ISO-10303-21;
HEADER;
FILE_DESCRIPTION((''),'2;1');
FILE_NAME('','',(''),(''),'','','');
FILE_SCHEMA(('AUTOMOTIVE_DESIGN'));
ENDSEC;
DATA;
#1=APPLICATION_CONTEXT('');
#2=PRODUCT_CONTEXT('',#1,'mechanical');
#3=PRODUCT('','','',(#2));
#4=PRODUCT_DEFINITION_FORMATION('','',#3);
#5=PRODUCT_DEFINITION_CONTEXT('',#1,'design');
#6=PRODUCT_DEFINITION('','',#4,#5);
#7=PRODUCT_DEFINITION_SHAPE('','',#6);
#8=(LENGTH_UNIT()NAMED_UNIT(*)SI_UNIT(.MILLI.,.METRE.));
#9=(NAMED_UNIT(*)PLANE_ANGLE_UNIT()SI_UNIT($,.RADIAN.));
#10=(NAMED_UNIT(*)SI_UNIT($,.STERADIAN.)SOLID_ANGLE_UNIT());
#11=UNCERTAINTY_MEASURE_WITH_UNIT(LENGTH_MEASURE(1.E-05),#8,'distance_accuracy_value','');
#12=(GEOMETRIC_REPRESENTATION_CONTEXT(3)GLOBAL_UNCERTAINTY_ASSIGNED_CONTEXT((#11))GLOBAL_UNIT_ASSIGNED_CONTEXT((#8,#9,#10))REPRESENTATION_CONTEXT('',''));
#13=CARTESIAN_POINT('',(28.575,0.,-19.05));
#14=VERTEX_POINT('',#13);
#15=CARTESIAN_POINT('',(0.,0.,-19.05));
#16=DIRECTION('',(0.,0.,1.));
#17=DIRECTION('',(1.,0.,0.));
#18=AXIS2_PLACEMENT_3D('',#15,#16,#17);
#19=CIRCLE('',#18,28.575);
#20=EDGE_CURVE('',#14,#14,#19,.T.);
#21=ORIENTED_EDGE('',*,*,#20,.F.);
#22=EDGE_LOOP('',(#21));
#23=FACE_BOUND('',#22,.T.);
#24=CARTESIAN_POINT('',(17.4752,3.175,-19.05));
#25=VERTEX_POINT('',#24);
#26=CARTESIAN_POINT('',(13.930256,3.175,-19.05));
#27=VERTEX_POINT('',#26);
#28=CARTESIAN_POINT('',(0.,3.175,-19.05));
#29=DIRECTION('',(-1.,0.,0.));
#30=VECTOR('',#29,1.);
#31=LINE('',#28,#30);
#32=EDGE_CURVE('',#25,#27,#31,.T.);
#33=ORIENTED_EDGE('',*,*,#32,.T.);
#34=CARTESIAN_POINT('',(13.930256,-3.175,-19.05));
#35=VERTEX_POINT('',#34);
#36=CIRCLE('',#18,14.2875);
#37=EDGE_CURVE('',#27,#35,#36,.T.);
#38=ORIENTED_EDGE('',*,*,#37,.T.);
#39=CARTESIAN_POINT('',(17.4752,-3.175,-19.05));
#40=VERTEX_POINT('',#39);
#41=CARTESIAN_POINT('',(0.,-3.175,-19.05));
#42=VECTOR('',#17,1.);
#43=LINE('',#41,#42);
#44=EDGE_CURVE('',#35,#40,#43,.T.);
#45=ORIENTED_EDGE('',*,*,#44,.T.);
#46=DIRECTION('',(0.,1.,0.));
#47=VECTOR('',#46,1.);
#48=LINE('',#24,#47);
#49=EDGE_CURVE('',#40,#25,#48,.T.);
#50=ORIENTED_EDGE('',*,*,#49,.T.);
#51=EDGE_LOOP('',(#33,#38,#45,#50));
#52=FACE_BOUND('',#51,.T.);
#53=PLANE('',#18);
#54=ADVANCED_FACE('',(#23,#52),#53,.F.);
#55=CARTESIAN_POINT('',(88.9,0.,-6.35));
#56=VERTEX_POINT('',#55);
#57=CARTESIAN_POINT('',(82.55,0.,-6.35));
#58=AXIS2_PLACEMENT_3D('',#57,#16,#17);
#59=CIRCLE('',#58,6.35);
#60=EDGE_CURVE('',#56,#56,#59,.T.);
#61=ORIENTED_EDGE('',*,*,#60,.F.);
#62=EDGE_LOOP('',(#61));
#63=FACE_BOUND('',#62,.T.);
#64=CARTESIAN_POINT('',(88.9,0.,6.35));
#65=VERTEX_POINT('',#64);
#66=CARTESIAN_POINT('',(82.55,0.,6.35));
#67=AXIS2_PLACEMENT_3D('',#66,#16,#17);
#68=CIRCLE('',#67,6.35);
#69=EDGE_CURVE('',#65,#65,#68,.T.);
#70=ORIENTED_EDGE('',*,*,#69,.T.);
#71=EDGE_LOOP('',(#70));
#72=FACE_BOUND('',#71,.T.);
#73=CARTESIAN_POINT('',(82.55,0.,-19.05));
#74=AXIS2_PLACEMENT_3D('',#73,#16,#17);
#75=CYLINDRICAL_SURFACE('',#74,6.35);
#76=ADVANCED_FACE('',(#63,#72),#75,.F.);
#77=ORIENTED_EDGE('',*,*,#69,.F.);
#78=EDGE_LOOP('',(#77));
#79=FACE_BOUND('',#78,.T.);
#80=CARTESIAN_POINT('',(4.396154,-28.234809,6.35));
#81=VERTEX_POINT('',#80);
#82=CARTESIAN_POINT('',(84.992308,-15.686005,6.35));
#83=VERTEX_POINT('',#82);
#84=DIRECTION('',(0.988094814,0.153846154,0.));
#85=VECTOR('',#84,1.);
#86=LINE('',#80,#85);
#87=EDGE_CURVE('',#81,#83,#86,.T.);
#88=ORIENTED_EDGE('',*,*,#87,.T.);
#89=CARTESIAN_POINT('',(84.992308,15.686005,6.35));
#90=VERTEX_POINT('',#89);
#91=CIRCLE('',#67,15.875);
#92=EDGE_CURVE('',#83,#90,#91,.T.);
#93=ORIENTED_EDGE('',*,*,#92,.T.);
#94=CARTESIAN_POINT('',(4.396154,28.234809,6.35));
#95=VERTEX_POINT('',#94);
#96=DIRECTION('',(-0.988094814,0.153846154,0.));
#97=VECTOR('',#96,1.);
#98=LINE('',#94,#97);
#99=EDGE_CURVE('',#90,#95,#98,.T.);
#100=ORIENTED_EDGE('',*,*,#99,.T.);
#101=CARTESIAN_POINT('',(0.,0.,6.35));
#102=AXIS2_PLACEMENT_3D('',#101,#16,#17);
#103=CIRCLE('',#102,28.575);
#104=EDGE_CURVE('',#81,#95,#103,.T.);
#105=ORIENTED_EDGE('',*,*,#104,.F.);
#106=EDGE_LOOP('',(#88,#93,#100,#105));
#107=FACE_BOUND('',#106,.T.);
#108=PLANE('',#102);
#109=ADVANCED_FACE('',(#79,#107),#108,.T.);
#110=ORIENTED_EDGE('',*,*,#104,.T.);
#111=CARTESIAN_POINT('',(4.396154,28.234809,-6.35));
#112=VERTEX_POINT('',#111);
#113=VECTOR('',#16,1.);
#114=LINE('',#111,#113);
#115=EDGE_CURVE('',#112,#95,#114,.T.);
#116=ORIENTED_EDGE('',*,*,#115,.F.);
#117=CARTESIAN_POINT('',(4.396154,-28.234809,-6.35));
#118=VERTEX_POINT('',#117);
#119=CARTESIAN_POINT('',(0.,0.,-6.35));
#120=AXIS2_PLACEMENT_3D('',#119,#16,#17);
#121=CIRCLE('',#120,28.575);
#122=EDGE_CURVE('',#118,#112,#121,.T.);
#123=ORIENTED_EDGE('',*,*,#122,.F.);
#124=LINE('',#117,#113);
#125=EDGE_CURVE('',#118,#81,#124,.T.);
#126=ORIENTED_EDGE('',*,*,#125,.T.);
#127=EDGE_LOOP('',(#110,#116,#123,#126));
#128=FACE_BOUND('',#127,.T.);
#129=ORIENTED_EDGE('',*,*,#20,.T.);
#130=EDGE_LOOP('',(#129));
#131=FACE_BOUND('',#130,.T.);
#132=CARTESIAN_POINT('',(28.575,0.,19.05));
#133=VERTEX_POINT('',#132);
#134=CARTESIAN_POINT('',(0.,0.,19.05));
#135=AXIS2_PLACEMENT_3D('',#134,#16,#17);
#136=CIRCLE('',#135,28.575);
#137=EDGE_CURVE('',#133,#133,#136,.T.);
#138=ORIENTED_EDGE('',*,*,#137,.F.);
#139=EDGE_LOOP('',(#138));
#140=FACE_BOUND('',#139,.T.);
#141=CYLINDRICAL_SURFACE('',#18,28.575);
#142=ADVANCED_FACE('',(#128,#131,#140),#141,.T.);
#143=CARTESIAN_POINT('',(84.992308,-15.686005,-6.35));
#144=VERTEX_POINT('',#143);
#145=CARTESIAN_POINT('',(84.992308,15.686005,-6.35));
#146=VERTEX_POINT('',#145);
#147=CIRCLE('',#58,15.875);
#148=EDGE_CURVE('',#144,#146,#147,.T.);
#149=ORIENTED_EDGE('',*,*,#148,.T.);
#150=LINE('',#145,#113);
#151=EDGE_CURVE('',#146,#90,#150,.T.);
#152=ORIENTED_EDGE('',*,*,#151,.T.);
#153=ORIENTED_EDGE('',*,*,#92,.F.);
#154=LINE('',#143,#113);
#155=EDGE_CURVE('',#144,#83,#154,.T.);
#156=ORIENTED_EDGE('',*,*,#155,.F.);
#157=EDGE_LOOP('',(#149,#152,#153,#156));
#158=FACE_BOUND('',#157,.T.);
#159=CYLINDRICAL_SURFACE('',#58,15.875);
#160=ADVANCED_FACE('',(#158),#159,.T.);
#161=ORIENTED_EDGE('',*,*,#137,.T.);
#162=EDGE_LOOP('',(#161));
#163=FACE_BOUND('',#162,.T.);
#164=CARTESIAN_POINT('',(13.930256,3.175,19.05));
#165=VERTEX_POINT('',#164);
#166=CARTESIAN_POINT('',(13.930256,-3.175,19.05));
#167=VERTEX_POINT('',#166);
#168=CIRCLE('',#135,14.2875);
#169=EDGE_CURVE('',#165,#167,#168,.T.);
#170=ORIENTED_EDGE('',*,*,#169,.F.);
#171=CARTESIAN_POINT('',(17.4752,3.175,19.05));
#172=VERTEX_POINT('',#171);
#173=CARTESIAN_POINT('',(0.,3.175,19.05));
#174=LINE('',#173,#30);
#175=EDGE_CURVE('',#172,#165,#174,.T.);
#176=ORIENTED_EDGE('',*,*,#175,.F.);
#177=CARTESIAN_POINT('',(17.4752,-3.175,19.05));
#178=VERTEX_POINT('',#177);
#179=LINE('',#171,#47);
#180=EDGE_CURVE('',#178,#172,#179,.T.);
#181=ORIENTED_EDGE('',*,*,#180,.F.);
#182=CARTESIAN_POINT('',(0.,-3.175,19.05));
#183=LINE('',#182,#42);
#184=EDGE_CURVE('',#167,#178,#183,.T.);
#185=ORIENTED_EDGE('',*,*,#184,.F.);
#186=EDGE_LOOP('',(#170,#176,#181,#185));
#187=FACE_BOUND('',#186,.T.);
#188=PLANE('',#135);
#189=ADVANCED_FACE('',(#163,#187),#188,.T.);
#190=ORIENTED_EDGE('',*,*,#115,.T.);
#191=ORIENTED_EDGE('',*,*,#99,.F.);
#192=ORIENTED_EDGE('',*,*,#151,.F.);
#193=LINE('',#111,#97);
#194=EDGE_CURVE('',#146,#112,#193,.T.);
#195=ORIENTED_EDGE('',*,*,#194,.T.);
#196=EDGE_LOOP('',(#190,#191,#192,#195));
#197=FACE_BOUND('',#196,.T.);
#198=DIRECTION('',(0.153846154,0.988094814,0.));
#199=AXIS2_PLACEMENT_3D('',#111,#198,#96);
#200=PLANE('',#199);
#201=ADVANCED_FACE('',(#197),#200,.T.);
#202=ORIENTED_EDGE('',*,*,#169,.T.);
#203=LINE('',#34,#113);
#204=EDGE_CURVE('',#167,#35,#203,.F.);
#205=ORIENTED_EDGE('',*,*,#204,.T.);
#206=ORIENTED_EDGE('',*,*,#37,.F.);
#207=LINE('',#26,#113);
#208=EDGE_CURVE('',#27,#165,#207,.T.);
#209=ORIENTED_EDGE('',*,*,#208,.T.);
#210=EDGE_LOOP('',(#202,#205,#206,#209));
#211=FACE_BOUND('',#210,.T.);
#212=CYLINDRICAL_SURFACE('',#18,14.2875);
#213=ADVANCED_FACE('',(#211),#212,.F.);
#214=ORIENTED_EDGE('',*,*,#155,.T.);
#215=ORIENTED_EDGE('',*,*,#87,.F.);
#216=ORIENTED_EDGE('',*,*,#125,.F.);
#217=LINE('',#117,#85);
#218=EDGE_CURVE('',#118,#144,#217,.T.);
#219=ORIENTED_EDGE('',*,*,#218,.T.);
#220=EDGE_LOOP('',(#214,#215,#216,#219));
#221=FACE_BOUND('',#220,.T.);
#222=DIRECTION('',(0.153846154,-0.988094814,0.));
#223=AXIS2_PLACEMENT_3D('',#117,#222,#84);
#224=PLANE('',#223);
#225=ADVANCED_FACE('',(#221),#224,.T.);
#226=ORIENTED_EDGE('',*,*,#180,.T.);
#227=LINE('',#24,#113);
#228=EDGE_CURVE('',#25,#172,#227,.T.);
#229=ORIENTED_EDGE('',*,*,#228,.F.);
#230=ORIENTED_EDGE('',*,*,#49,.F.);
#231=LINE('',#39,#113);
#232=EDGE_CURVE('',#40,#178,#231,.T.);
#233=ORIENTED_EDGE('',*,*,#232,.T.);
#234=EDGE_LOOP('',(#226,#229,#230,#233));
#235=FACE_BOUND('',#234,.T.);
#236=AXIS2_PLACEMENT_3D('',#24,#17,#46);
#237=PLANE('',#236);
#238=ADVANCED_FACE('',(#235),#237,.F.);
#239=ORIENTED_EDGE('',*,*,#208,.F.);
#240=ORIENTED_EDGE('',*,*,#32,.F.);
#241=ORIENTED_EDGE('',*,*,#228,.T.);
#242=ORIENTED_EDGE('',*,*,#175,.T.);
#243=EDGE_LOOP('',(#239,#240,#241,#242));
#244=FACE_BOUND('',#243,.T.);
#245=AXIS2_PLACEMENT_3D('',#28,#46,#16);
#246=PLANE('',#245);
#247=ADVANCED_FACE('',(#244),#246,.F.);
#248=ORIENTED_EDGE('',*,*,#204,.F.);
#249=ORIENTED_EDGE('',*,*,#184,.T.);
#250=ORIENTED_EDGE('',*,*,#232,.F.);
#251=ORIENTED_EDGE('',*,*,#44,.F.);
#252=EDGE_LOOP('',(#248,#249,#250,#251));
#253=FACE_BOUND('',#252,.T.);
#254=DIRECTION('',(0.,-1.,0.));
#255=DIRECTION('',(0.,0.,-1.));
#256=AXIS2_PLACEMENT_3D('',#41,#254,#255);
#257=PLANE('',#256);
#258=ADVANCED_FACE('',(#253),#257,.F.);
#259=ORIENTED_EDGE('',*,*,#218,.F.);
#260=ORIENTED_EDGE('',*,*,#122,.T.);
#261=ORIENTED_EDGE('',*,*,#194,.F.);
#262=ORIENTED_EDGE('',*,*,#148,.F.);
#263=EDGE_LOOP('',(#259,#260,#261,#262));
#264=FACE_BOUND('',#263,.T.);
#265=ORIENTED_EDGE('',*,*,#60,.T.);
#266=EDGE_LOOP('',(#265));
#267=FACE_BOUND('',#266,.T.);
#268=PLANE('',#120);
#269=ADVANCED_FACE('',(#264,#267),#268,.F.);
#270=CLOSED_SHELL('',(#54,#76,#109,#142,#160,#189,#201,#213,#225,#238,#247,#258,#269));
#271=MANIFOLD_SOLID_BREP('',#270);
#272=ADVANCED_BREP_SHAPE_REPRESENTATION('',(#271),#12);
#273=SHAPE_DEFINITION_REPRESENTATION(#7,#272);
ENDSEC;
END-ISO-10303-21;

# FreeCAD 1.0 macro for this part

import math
import FreeCAD as App
import Part
import Sketcher
Q = App.Units.Quantity

doc = App.newDocument("Part")
params = doc.addObject("Spreadsheet::Sheet", "Params")
for row, (alias, value) in enumerate([
    ("sketch1_radius", "0.625 in"),
    ("sketch1_radius2", "1.125 in"),
    ("pad1_length", "0.25 in"),
    ("pad1_length2", "0.25 in"),
    ("sketch2_diameter", "2.25 in"),
    ("pad2_length", "0.75 in"),
    ("pad2_length2", "0.75 in"),
    ("sketch3_diameter", "0.5 in"),
    ("sketch4_diameter", "1.125 in"),
    ("sketch5_height", "0.25 in"),
    ("sketch5_width", "0.688 in"),
], start=1):
    params.set(f"A{row}", alias)
    params.set(f"B{row}", "=" + value)
    params.setAlias(f"B{row}", alias)

body = doc.addObject("PartDesign::Body", "Body")

# Sketch on XY plane
sketch1 = body.newObject("Sketcher::SketchObject", "Sketch")
sketch1.AttachmentSupport = (doc.getObject("XY_Plane"), [""])
sketch1.MapMode = "FlatFace"
sketch1.addGeometry(Part.LineSegment(App.Vector(4, -28, 0), App.Vector(85, -16, 0)), False)
sketch1.addGeometry(Part.ArcOfCircle(Part.Circle(App.Vector(83, 0, 0), App.Vector(0, 0, 1), 16), math.radians(-81), math.radians(81)), False)
sketch1.addGeometry(Part.LineSegment(App.Vector(85, 16, 0), App.Vector(4, 28, 0)), False)
sketch1.addGeometry(Part.ArcOfCircle(Part.Circle(App.Vector(0, 0, 0), App.Vector(0, 0, 1), 29), math.radians(-81), math.radians(81)), False)
sketch1.addConstraint(Sketcher.Constraint("Tangent", 0, 2, 1, 1))
sketch1.addConstraint(Sketcher.Constraint("Tangent", 1, 2, 2, 1))
sketch1.addConstraint(Sketcher.Constraint("Tangent", 2, 2, 3, 2))
sketch1.addConstraint(Sketcher.Constraint("Tangent", 3, 1, 0, 1))
sketch1.addConstraint(Sketcher.Constraint("Coincident", 3, 3, -1, 1))
sketch1.addConstraint(Sketcher.Constraint("PointOnObject", 1, 3, -1))
sketch1.addConstraint(Sketcher.Constraint("Radius", 1, Q("0.625 in")))
sketch1.addConstraint(Sketcher.Constraint("Radius", 3, Q("1.125 in")))
sketch1.addConstraint(Sketcher.Constraint("DistanceX", -1, 1, 1, 3, Q("3.25 in")))
sketch1.setExpression("Constraints[6]", "Params.sketch1_radius")
sketch1.setExpression("Constraints[7]", "Params.sketch1_radius2")
pad1 = body.newObject("PartDesign::Pad", "Pad")
pad1.Profile = sketch1
pad1.Type = "TwoLengths"
pad1.setExpression("Length", "Params.pad1_length")
pad1.setExpression("Length2", "Params.pad1_length2")

# Sketch on XY plane
sketch2 = body.newObject("Sketcher::SketchObject", "Sketch001")
sketch2.AttachmentSupport = (doc.getObject("XY_Plane"), [""])
sketch2.MapMode = "FlatFace"
sketch2.addGeometry(Part.Circle(App.Vector(0, 0, 0), App.Vector(0, 0, 1), 29), False)
sketch2.addConstraint(Sketcher.Constraint("Coincident", 0, 3, -1, 1))
sketch2.addConstraint(Sketcher.Constraint("Diameter", 0, Q("2.25 in")))
sketch2.setExpression("Constraints[1]", "Params.sketch2_diameter")
pad2 = body.newObject("PartDesign::Pad", "Pad001")
pad2.Profile = sketch2
pad2.Type = "TwoLengths"
pad2.setExpression("Length", "Params.pad2_length")
pad2.setExpression("Length2", "Params.pad2_length2")

# Sketch on XY plane
sketch3 = body.newObject("Sketcher::SketchObject", "Sketch002")
sketch3.AttachmentSupport = (doc.getObject("XY_Plane"), [""])
sketch3.MapMode = "FlatFace"
sketch3.AttachmentOffset = App.Placement(App.Vector(0, 0, 0.25 * 25.4), App.Rotation())
sketch3.addGeometry(Part.Circle(App.Vector(83, 0, 0), App.Vector(0, 0, 1), 6), False)
sketch3.addConstraint(Sketcher.Constraint("PointOnObject", 0, 3, -1))
sketch3.addConstraint(Sketcher.Constraint("Diameter", 0, Q("0.5 in")))
sketch3.addConstraint(Sketcher.Constraint("DistanceX", -1, 1, 0, 3, Q("3.25 in")))
sketch3.setExpression("Constraints[1]", "Params.sketch3_diameter")
pocket1 = body.newObject("PartDesign::Pocket", "Pocket")
pocket1.Profile = sketch3
pocket1.Type = "ThroughAll"

# Sketch on XY plane
sketch4 = body.newObject("Sketcher::SketchObject", "Sketch003")
sketch4.AttachmentSupport = (doc.getObject("XY_Plane"), [""])
sketch4.MapMode = "FlatFace"
sketch4.AttachmentOffset = App.Placement(App.Vector(0, 0, 0.75 * 25.4), App.Rotation())
sketch4.addGeometry(Part.Circle(App.Vector(0, 0, 0), App.Vector(0, 0, 1), 14), False)
sketch4.addConstraint(Sketcher.Constraint("Coincident", 0, 3, -1, 1))
sketch4.addConstraint(Sketcher.Constraint("Diameter", 0, Q("1.125 in")))
sketch4.setExpression("Constraints[1]", "Params.sketch4_diameter")
pocket2 = body.newObject("PartDesign::Pocket", "Pocket001")
pocket2.Profile = sketch4
pocket2.Type = "ThroughAll"

# Sketch on XY plane
sketch5 = body.newObject("Sketcher::SketchObject", "Sketch004")
sketch5.AttachmentSupport = (doc.getObject("XY_Plane"), [""])
sketch5.MapMode = "FlatFace"
sketch5.AttachmentOffset = App.Placement(App.Vector(0, 0, 0.75 * 25.4), App.Rotation())
sketch5.addGeometry(Part.LineSegment(App.Vector(0, 3, 0), App.Vector(0, -3, 0)), False)
sketch5.addGeometry(Part.LineSegment(App.Vector(0, -3, 0), App.Vector(17, -3, 0)), False)
sketch5.addGeometry(Part.LineSegment(App.Vector(17, -3, 0), App.Vector(17, 3, 0)), False)
sketch5.addGeometry(Part.LineSegment(App.Vector(17, 3, 0), App.Vector(0, 3, 0)), False)
sketch5.addConstraint(Sketcher.Constraint("Coincident", 0, 2, 1, 1))
sketch5.addConstraint(Sketcher.Constraint("Coincident", 1, 2, 2, 1))
sketch5.addConstraint(Sketcher.Constraint("Coincident", 2, 2, 3, 1))
sketch5.addConstraint(Sketcher.Constraint("Coincident", 3, 2, 0, 1))
sketch5.addConstraint(Sketcher.Constraint("Vertical", 0))
sketch5.addConstraint(Sketcher.Constraint("Horizontal", 1))
sketch5.addConstraint(Sketcher.Constraint("Vertical", 2))
sketch5.addConstraint(Sketcher.Constraint("Horizontal", 3))
sketch5.addConstraint(Sketcher.Constraint("Symmetric", 0, 2, 3, 2, -1, 1))
sketch5.addConstraint(Sketcher.Constraint("DistanceY", 0, 2, 0, 1, Q("0.25 in")))
sketch5.addConstraint(Sketcher.Constraint("DistanceX", 1, 1, 1, 2, Q("0.688 in")))
sketch5.setExpression("Constraints[9]", "Params.sketch5_height")
sketch5.setExpression("Constraints[10]", "Params.sketch5_width")
pocket3 = body.newObject("PartDesign::Pocket", "Pocket002")
pocket3.Profile = sketch5
pocket3.Type = "ThroughAll"

doc.recompute()
